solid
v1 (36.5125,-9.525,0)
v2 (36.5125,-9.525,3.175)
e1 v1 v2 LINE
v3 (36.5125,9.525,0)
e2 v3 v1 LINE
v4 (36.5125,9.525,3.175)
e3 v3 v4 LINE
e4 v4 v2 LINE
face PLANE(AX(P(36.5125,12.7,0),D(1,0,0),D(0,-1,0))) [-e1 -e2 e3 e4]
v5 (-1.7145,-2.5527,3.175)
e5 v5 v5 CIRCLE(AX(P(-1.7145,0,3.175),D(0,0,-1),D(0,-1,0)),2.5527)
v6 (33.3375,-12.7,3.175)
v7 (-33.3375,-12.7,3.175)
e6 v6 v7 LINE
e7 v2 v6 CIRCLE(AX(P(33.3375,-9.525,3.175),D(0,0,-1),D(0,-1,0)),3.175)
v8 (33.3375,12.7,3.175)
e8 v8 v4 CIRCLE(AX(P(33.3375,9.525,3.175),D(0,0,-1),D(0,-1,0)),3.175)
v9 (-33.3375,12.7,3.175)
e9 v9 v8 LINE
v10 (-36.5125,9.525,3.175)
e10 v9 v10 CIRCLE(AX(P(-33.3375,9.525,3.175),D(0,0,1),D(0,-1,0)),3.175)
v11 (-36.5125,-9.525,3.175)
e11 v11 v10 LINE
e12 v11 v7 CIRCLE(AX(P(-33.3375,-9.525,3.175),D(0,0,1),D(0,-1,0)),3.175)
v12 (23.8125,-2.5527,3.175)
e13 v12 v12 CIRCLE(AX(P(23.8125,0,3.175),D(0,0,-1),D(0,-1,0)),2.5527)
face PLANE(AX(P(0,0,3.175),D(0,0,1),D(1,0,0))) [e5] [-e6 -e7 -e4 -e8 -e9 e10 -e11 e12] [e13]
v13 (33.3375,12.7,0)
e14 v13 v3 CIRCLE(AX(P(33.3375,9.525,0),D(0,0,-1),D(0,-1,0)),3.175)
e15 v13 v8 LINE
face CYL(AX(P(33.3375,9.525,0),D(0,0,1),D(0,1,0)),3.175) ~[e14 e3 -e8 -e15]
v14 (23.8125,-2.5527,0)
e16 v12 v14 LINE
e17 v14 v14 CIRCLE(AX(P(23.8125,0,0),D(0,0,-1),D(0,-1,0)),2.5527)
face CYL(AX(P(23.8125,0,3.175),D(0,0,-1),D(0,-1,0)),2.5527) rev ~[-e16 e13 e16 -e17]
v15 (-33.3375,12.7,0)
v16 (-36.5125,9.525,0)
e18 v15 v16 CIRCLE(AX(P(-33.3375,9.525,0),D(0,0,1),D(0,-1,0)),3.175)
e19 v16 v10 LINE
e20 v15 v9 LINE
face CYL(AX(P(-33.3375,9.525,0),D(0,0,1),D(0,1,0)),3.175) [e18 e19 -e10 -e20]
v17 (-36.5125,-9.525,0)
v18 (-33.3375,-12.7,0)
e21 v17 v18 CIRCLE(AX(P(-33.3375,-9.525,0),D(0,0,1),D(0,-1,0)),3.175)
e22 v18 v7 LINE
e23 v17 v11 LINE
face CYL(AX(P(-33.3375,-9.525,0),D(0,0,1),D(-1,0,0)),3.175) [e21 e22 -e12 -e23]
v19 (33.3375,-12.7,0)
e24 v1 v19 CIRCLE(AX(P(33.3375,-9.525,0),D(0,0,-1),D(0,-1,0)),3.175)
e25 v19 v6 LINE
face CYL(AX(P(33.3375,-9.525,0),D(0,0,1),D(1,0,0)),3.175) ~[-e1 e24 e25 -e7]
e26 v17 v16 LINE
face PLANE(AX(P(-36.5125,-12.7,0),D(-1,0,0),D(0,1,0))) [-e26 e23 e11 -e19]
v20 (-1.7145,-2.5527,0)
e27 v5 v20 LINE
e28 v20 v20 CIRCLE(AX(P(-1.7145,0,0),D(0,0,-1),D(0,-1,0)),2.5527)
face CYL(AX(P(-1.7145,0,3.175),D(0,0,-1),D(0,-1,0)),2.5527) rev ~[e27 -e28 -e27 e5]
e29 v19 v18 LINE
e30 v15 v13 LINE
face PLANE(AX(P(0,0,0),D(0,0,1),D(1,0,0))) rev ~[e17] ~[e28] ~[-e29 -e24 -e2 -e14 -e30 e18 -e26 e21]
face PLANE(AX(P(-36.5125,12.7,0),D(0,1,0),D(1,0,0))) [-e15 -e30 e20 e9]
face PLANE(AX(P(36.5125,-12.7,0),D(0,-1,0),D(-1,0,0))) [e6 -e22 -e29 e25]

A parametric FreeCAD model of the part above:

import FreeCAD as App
import Part
import Sketcher

V = App.Vector
Q = App.Units.Quantity


def edges_at(feature, points):
    """Names of the edges that pass closest to the given points."""
    edges = feature.Shape.Edges
    near = lambda p: min(range(len(edges)), key=lambda i: edges[i].distToShape(Part.Vertex(*p))[0])
    return sorted({f"Edge{near(p) + 1}" for p in points})

doc = App.newDocument("Part")
params = doc.addObject("Spreadsheet::Sheet", "Params")
for row, (alias, value) in enumerate([
    ("sketch1_height", "1 in"),
    ("sketch1_width", "2.875 in"),
    ("pad1_length", "0.125 in"),
    ("sketch2_diameter", "0.201 in"),
    ("hole_diameter", "0.201 in"),
    ("fillet_radius", "0.125 in"),
], start=1):
    params.set(f"A{row}", alias)
    params.set(f"B{row}", "=" + value)
    params.setAlias(f"B{row}", alias)

body = doc.addObject("PartDesign::Body", "Body")

sketch1 = body.newObject("Sketcher::SketchObject", "Sketch")
sketch1.AttachmentSupport = (doc.getObject("XY_Plane"), [""])
sketch1.MapMode = "FlatFace"
sketch1.addGeometry(Part.LineSegment(V(36.5125, 12.7, 0), V(-36.5125, 12.7, 0)), False)
sketch1.addGeometry(Part.LineSegment(V(-36.5125, 12.7, 0), V(-36.5125, -12.7, 0)), False)
sketch1.addGeometry(Part.LineSegment(V(-36.5125, -12.7, 0), V(36.5125, -12.7, 0)), False)
sketch1.addGeometry(Part.LineSegment(V(36.5125, -12.7, 0), V(36.5125, 12.7, 0)), False)
sketch1.addConstraint(Sketcher.Constraint("Coincident", 0, 2, 1, 1))
sketch1.addConstraint(Sketcher.Constraint("Coincident", 1, 2, 2, 1))
sketch1.addConstraint(Sketcher.Constraint("Coincident", 2, 2, 3, 1))
sketch1.addConstraint(Sketcher.Constraint("Coincident", 3, 2, 0, 1))
sketch1.addConstraint(Sketcher.Constraint("Horizontal", 0))
sketch1.addConstraint(Sketcher.Constraint("Vertical", 1))
sketch1.addConstraint(Sketcher.Constraint("Horizontal", 2))
sketch1.addConstraint(Sketcher.Constraint("Vertical", 3))
sketch1.addConstraint(Sketcher.Constraint("Symmetric", 0, 2, 2, 2, -1, 1))
sketch1.addConstraint(Sketcher.Constraint("DistanceY", 1, 2, 1, 1, Q("1 in")))
sketch1.addConstraint(Sketcher.Constraint("DistanceX", 0, 2, 0, 1, Q("2.875 in")))
sketch1.setExpression("Constraints[9]", "Params.sketch1_height")
sketch1.setExpression("Constraints[10]", "Params.sketch1_width")
pad1 = body.newObject("PartDesign::Pad", "Pad")
pad1.Profile = sketch1
pad1.setExpression("Length", "Params.pad1_length")

sketch2 = body.newObject("Sketcher::SketchObject", "Sketch001")
sketch2.AttachmentSupport = (doc.getObject("XY_Plane"), [""])
sketch2.MapMode = "FlatFace"
sketch2.AttachmentOffset = App.Placement(V(0, 0, 0.125 * 25.4), App.Rotation())
sketch2.addGeometry(Part.Circle(V(23.8125, 0, 0), V(0, 0, 1), 2.5527), False)
sketch2.addGeometry(Part.Circle(V(-1.7145, 0, 0), V(0, 0, 1), 2.5527), False)
sketch2.addConstraint(Sketcher.Constraint("Equal", 0, 1))
sketch2.addConstraint(Sketcher.Constraint("PointOnObject", 0, 3, -1))
sketch2.addConstraint(Sketcher.Constraint("PointOnObject", 1, 3, -1))
sketch2.addConstraint(Sketcher.Constraint("Diameter", 0, Q("0.201 in")))
sketch2.addConstraint(Sketcher.Constraint("DistanceX", -1, 1, 0, 3, Q("0.9375 in")))
sketch2.addConstraint(Sketcher.Constraint("DistanceX", 1, 3, 0, 3, Q("1.005 in")))
sketch2.setExpression("Constraints[3]", "Params.sketch2_diameter")
doc.recompute()
hole = body.newObject("PartDesign::Hole", "Hole")
hole.Profile = sketch2
hole.ThreadType = "None"
hole.setExpression("Diameter", "Params.hole_diameter")
hole.DepthType = "ThroughAll"
doc.recompute()

fillet = body.newObject("PartDesign::Fillet", "Fillet")
fillet.Base = (hole, edges_at(hole, [
    (-36.513, 12.7, 1.587),
    (-36.513, -12.7, 1.587),
    (36.513, 12.7, 1.587),
    (36.513, -12.7, 1.587),
]))
fillet.setExpression("Radius", "Params.fillet_radius")

doc.recompute()
